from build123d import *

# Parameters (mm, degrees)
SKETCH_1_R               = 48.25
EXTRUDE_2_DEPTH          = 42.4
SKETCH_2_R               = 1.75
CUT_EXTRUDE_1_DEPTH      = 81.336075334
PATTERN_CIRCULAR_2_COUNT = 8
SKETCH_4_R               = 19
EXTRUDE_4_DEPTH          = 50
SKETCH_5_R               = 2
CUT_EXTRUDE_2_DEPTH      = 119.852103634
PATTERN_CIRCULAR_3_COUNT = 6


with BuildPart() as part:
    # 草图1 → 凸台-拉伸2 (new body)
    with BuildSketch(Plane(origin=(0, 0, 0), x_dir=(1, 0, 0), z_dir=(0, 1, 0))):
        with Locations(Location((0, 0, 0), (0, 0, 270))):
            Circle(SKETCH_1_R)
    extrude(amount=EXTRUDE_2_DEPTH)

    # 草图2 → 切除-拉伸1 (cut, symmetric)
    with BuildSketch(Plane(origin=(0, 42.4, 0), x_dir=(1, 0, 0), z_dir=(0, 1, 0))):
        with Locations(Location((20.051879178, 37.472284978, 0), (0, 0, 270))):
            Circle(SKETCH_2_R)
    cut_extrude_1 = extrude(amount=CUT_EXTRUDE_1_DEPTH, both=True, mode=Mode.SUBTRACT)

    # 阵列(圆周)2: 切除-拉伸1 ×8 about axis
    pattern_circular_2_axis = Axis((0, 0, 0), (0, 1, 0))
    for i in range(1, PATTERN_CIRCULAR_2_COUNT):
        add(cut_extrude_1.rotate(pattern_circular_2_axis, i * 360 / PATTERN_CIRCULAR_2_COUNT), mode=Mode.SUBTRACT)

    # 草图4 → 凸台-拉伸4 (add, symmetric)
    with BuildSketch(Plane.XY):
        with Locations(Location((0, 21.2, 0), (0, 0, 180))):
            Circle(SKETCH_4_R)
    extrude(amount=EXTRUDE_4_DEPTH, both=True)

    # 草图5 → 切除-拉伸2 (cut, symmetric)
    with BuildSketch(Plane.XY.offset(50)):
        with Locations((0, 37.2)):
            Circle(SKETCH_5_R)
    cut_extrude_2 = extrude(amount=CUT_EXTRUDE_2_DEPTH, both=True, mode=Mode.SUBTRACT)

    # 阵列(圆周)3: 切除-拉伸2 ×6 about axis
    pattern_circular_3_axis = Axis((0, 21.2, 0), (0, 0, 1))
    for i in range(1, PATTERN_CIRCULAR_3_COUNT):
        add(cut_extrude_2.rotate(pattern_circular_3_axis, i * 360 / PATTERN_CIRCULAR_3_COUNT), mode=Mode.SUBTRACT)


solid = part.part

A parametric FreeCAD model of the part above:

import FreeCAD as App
import Part
import Sketcher

V = App.Vector

doc = App.newDocument("Part")
body = doc.addObject("PartDesign::Body", "Body")

# Sketch on XZ plane
sketch1 = body.newObject("Sketcher::SketchObject", "Sketch")
sketch1.AttachmentSupport = (doc.getObject("XZ_Plane"), [""])
sketch1.MapMode = "FlatFace"
sketch1.addGeometry(Part.Circle(V(0, 0, 0), V(0, 0, 1), 48.25), False)
sketch1.addConstraint([
    Sketcher.Constraint("Coincident", 0, 3, -1, 1),
    Sketcher.Constraint("Diameter", 0, 96.5),
])
pad1 = body.newObject("PartDesign::Pad", "Pad")
pad1.Profile = sketch1
pad1.Length = 42.4
pad1.Reversed = True

# Sketch on XZ plane
sketch2 = body.newObject("Sketcher::SketchObject", "Sketch001")
sketch2.AttachmentSupport = (doc.getObject("XZ_Plane"), [""])
sketch2.MapMode = "FlatFace"
sketch2.AttachmentOffset = App.Placement(V(0, 0, -42.4), App.Rotation())
sketch2.addGeometry(Part.Circle(V(20.051879, -37.472285, 0), V(0, 0, 1), 1.75), False)
sketch2.addConstraint([
    Sketcher.Constraint("Diameter", 0, 3.5),
    Sketcher.Constraint("DistanceX", -1, 1, 0, 3, 20.051879),
    Sketcher.Constraint("DistanceY", 0, 3, -1, 1, 37.472285),
])
pocket1 = body.newObject("PartDesign::Pocket", "Pocket")
pocket1.Profile = sketch2
pocket1.Length = 162.672151
pocket1.Midplane = True
doc.recompute()

polarpattern = body.newObject("PartDesign::PolarPattern", "PolarPattern")
polarpattern.Originals = [pocket1]
polarpattern.Axis = (doc.getObject("Y_Axis"), [""])
polarpattern.Angle = 360
polarpattern.Occurrences = 8
body.Tip = polarpattern

# Sketch on XY plane
sketch3 = body.newObject("Sketcher::SketchObject", "Sketch002")
sketch3.AttachmentSupport = (doc.getObject("XY_Plane"), [""])
sketch3.MapMode = "FlatFace"
sketch3.addGeometry(Part.Circle(V(0, 21.2, 0), V(0, 0, 1), 19), False)
sketch3.addConstraint([
    Sketcher.Constraint("PointOnObject", 0, 3, -2),
    Sketcher.Constraint("Diameter", 0, 38.0),
    Sketcher.Constraint("DistanceY", -1, 1, 0, 3, 21.2),
])
pad2 = body.newObject("PartDesign::Pad", "Pad001")
pad2.Profile = sketch3
pad2.Length = 100
pad2.Midplane = True

# Sketch on XY plane
sketch4 = body.newObject("Sketcher::SketchObject", "Sketch003")
sketch4.AttachmentSupport = (doc.getObject("XY_Plane"), [""])
sketch4.MapMode = "FlatFace"
sketch4.AttachmentOffset = App.Placement(V(0, 0, 50), App.Rotation())
sketch4.addGeometry(Part.Circle(V(0, 37.2, 0), V(0, 0, 1), 2), False)
sketch4.addConstraint([
    Sketcher.Constraint("PointOnObject", 0, 3, -2),
    Sketcher.Constraint("Diameter", 0, 4.0),
    Sketcher.Constraint("DistanceY", -1, 1, 0, 3, 37.2),
])
pocket2 = body.newObject("PartDesign::Pocket", "Pocket001")
pocket2.Profile = sketch4
pocket2.Length = 239.704207
pocket2.Midplane = True
doc.recompute()

datumline = body.newObject("PartDesign::Line", "DatumLine")
datumline.Placement = App.Placement(V(0, 21.2, 0), App.Rotation(V(0, 0, 1), V(0, 0, 1)))
polarpattern2 = body.newObject("PartDesign::PolarPattern", "PolarPattern001")
polarpattern2.Originals = [pocket2]
polarpattern2.Axis = (datumline, [""])
polarpattern2.Angle = 360
polarpattern2.Occurrences = 6
body.Tip = polarpattern2

doc.recompute()
